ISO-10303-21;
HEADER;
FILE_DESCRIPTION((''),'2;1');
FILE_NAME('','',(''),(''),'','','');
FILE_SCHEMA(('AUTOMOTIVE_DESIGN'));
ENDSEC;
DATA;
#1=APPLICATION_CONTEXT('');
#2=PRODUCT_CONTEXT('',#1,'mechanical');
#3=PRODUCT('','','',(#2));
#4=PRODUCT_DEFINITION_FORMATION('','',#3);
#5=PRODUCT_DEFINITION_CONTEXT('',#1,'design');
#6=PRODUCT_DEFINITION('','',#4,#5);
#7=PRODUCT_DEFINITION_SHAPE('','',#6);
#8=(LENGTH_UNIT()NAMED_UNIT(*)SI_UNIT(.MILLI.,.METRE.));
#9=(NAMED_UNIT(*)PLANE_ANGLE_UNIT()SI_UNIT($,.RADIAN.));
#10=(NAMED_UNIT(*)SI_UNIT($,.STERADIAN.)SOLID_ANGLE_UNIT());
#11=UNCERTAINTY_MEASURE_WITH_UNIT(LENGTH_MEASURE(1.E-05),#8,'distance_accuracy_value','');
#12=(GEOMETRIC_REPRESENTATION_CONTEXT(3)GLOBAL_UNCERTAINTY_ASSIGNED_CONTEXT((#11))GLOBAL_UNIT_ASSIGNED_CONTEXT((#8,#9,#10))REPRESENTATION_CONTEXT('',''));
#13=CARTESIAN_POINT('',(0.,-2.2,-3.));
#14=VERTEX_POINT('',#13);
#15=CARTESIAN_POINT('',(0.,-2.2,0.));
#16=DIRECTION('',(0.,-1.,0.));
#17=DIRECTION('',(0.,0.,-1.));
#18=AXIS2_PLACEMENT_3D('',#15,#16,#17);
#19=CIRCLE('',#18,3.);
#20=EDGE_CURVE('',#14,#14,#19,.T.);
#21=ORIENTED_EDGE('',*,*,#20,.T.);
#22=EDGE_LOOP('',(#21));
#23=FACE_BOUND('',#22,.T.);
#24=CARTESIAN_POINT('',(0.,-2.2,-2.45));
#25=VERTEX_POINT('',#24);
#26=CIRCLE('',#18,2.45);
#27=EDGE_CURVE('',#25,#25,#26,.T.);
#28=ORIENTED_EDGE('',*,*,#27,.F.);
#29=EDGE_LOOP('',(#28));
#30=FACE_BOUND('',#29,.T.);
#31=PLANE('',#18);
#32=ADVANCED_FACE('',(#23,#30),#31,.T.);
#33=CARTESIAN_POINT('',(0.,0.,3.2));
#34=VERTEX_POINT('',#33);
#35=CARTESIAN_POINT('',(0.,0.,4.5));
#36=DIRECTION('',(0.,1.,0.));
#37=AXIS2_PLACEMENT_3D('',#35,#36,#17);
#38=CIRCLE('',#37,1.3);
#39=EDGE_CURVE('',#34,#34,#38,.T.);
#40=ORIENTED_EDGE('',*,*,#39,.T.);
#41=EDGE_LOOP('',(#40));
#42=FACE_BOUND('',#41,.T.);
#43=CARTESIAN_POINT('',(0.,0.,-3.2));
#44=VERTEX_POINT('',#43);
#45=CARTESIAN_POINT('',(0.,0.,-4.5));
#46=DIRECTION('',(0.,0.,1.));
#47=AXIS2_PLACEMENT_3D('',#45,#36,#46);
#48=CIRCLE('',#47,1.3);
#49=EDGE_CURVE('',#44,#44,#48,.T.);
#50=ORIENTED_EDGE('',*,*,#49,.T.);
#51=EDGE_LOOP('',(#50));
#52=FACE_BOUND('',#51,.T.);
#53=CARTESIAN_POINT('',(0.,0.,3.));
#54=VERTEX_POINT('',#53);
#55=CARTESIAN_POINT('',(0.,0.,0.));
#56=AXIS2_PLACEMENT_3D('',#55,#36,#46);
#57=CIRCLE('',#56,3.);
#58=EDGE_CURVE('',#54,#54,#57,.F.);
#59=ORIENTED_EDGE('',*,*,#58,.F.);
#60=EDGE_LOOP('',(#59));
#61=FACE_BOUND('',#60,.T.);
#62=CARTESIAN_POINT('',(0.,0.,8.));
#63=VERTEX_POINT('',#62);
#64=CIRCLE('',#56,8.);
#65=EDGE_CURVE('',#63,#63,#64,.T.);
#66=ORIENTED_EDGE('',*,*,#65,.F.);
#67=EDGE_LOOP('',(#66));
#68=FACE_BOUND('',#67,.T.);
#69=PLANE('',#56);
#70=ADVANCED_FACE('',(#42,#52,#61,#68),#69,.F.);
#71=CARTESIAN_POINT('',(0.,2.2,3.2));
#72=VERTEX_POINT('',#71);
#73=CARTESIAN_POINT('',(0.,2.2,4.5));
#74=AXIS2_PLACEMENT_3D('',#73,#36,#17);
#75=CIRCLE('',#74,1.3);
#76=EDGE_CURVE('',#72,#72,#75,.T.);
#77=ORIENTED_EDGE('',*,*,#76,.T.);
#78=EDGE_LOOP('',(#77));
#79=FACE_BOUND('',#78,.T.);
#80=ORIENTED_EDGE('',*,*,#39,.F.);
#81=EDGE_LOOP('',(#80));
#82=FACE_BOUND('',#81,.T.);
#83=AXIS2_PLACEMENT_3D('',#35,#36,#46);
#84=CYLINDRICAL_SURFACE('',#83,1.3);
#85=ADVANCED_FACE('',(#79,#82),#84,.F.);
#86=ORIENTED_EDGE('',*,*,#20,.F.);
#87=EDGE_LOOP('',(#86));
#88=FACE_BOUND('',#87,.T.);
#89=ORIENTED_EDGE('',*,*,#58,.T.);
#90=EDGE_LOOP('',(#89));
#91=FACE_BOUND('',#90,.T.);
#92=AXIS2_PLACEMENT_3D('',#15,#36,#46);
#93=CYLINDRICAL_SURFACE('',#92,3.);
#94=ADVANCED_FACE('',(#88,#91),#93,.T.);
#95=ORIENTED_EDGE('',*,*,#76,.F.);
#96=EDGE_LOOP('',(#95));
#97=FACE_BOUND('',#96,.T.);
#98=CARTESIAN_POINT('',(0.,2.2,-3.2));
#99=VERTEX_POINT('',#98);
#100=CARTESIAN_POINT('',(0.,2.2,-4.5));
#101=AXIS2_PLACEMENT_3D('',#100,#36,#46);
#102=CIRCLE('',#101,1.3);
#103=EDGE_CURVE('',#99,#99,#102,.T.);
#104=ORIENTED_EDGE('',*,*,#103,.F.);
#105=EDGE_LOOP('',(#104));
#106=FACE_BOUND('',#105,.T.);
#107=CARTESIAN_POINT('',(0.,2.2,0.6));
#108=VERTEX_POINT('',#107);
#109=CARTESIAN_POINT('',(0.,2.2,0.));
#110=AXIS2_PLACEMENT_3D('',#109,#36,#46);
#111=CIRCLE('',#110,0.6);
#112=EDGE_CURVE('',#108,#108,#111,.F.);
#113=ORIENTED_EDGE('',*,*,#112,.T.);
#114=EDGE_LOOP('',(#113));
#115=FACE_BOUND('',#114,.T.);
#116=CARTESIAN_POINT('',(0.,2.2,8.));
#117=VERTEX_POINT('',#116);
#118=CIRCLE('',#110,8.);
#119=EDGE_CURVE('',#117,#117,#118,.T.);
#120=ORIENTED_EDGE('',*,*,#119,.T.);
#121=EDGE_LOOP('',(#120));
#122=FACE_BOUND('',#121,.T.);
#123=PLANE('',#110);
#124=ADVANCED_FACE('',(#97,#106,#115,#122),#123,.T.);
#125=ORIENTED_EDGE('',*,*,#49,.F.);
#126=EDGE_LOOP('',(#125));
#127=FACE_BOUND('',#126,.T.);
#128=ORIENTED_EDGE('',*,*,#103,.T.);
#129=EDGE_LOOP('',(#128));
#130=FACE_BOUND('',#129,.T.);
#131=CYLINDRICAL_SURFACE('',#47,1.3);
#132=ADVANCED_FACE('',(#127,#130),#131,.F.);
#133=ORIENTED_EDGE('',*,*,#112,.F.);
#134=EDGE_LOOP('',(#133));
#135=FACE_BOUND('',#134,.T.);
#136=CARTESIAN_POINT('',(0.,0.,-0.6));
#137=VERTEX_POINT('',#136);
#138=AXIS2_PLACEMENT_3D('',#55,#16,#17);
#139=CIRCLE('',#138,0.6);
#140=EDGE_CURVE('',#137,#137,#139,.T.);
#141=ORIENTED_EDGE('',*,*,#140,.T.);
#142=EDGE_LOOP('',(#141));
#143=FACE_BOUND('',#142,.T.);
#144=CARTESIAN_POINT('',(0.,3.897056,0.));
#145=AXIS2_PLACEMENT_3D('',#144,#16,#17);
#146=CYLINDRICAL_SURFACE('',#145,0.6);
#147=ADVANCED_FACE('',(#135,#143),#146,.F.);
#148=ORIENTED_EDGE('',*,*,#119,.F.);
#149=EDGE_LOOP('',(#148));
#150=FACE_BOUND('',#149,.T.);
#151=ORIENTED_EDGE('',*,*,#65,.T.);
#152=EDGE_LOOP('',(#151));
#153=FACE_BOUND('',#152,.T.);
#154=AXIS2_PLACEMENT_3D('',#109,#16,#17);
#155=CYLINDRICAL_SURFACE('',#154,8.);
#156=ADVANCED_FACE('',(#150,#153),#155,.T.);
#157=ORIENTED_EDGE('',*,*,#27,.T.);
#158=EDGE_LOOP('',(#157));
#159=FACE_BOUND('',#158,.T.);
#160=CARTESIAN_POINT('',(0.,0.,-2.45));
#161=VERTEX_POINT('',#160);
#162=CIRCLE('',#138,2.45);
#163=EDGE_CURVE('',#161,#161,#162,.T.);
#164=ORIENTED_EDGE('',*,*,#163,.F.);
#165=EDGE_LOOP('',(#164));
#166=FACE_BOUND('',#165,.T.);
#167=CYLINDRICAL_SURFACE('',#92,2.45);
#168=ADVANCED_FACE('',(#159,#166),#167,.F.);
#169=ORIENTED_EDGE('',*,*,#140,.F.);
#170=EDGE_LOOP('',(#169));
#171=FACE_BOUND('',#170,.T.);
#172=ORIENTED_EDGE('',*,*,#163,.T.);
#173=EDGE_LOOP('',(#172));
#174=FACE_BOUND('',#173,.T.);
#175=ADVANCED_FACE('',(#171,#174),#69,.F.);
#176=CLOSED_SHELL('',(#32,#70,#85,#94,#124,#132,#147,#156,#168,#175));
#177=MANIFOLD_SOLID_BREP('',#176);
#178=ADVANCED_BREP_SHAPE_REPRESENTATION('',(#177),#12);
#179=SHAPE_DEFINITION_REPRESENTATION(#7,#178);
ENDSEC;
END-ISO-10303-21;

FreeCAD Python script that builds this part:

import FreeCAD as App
import Part
import Sketcher
from FreeCAD import Vector

doc = App.newDocument("Part")
body = doc.addObject("PartDesign::Body", "Body")

sketch1 = doc.addObject("Sketcher::SketchObject", "Sketch")
body.addObject(sketch1)
sketch1.AttachmentSupport = (doc.XZ_Plane, [""])
sketch1.MapMode = "FlatFace"
sketch1.addGeometry(Part.Circle(Vector(0, 0, 0), Vector(0, 0, 1), 8), False)
sketch1.addConstraint([
    Sketcher.Constraint("Coincident", 0, 3, -1, 1),
    Sketcher.Constraint("Diameter", 0, 16.0),
])
pad1 = doc.addObject("PartDesign::Pad", "Pad")
body.addObject(pad1)
pad1.Profile = sketch1
pad1.Length = 2.2
pad1.Reversed = True

sketch2 = doc.addObject("Sketcher::SketchObject", "Sketch001")
body.addObject(sketch2)
sketch2.AttachmentSupport = (doc.XZ_Plane, [""])
sketch2.MapMode = "FlatFace"
sketch2.AttachmentOffset = App.Placement(Vector(0, 0, -2.2), App.Rotation())
sketch2.addGeometry([
    Part.Circle(Vector(0, -4.5, 0), Vector(0, 0, 1), 1.3),
    Part.Circle(Vector(0, 4.5, 0), Vector(0, 0, 1), 1.3),
], False)
sketch2.addConstraint([
    Sketcher.Constraint("Equal", 0, 1),
    Sketcher.Constraint("Symmetric", 0, 3, 1, 3, -1, 1),
    Sketcher.Constraint("PointOnObject", 0, 3, -2),
    Sketcher.Constraint("Diameter", 0, 2.6),
    Sketcher.Constraint("DistanceY", 0, 3, 1, 3, 9.0),
])
pocket1 = doc.addObject("PartDesign::Pocket", "Pocket")
body.addObject(pocket1)
pocket1.Profile = sketch2
pocket1.Length = 2.2
pocket1.Reversed = True

sketch3 = doc.addObject("Sketcher::SketchObject", "Sketch002")
body.addObject(sketch3)
sketch3.AttachmentSupport = (doc.XZ_Plane, [""])
sketch3.MapMode = "FlatFace"
sketch3.addGeometry([
    Part.Circle(Vector(0, 0, 0), Vector(0, 0, 1), 3),
    Part.Circle(Vector(0, 0, 0), Vector(0, 0, 1), 2.5),
], False)
sketch3.addConstraint([
    Sketcher.Constraint("Coincident", 0, 3, -1, 1),
    Sketcher.Constraint("Coincident", 1, 3, -1, 1),
    Sketcher.Constraint("Diameter", 0, 6.0),
    Sketcher.Constraint("Diameter", 1, 4.9),
])
pad2 = doc.addObject("PartDesign::Pad", "Pad001")
body.addObject(pad2)
pad2.Profile = sketch3
pad2.Length = 2.2

sketch4 = doc.addObject("Sketcher::SketchObject", "Sketch003")
body.addObject(sketch4)
sketch4.AttachmentSupport = (doc.XZ_Plane, [""])
sketch4.MapMode = "FlatFace"
sketch4.addGeometry(Part.Circle(Vector(0, 0, 0), Vector(0, 0, 1), 0.6), False)
sketch4.addConstraint([
    Sketcher.Constraint("Coincident", 0, 3, -1, 1),
    Sketcher.Constraint("Diameter", 0, 1.2),
])
pocket2 = doc.addObject("PartDesign::Pocket", "Pocket001")
body.addObject(pocket2)
pocket2.Profile = sketch4
pocket2.Length = 2.2

doc.recompute()
